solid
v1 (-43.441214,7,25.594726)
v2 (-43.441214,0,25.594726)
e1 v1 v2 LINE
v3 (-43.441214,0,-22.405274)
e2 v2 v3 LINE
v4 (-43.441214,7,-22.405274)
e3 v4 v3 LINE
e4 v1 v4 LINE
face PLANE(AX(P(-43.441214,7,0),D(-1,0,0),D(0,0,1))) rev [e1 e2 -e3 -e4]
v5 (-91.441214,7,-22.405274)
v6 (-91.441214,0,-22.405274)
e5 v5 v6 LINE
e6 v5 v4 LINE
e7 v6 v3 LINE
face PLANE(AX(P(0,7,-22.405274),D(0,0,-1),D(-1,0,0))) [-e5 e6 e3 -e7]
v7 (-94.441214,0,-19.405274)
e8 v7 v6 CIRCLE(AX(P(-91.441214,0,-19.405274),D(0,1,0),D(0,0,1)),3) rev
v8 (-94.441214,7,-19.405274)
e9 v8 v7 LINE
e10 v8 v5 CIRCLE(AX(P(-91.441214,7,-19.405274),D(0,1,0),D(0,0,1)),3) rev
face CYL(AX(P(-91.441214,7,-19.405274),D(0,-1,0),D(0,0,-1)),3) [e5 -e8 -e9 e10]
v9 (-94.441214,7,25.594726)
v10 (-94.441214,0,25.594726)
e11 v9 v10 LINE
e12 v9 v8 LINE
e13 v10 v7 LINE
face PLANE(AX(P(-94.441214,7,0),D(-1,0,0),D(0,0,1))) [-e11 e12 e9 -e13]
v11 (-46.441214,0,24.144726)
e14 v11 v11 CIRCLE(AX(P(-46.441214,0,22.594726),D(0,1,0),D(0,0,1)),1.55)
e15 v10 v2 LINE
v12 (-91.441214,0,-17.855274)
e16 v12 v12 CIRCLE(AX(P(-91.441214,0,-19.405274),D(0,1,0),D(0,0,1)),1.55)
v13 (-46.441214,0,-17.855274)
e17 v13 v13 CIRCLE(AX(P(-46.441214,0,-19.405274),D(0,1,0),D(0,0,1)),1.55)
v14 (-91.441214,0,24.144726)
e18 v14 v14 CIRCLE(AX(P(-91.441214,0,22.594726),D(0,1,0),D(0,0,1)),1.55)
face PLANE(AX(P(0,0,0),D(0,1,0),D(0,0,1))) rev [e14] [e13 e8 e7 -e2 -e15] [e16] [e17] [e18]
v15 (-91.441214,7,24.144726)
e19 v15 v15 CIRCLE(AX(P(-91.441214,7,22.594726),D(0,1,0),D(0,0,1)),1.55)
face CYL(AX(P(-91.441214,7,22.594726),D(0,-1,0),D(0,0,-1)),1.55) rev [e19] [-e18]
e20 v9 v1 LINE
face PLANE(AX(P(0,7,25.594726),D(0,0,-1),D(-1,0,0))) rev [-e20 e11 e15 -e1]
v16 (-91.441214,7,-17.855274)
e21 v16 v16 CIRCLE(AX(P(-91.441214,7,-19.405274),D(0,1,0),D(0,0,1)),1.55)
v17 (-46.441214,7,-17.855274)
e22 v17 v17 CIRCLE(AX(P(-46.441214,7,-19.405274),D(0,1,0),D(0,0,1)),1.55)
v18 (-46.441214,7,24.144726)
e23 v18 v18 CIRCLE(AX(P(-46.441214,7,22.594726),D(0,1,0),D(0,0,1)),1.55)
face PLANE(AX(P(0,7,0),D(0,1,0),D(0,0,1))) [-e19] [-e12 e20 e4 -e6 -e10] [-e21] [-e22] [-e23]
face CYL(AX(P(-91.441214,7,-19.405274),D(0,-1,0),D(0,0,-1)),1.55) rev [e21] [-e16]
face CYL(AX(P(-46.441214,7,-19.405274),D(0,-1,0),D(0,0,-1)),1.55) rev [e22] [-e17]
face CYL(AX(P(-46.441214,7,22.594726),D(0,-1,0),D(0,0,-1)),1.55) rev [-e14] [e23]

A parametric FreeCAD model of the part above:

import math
import FreeCAD as App
import Part
import Sketcher

doc = App.newDocument("Part")
body = doc.addObject("PartDesign::Body", "Body")

sketch1 = body.newObject("Sketcher::SketchObject", "Sketch")
sketch1.AttachmentSupport = (doc.getObject("XZ_Plane"), [""])
sketch1.MapMode = "FlatFace"
sketch1.addGeometry(Part.LineSegment(App.Vector(-94.4, 25.6, 0), App.Vector(-43.4, 25.6, 0)), False)
sketch1.addGeometry(Part.LineSegment(App.Vector(-43.4, 25.6, 0), App.Vector(-43.4, -22.4, 0)), False)
sketch1.addGeometry(Part.LineSegment(App.Vector(-43.4, -22.4, 0), App.Vector(-91.4, -22.4, 0)), False)
sketch1.addGeometry(Part.ArcOfCircle(Part.Circle(App.Vector(-91.4, -19.4, 0), App.Vector(0, 0, 1), 3), math.radians(180), math.radians(270)), False)
sketch1.addGeometry(Part.LineSegment(App.Vector(-94.4, -19.4, 0), App.Vector(-94.4, 25.6, 0)), False)
sketch1.addGeometry(Part.Circle(App.Vector(-91.4, 22.6, 0), App.Vector(0, 0, 1), 1.6), False)
sketch1.addGeometry(Part.Circle(App.Vector(-46.4, 22.6, 0), App.Vector(0, 0, 1), 1.6), False)
sketch1.addGeometry(Part.Circle(App.Vector(-91.4, -19.4, 0), App.Vector(0, 0, 1), 1.6), False)
sketch1.addGeometry(Part.Circle(App.Vector(-46.4, -19.4, 0), App.Vector(0, 0, 1), 1.6), False)
sketch1.addConstraint(Sketcher.Constraint("Coincident", 0, 2, 1, 1))
sketch1.addConstraint(Sketcher.Constraint("Coincident", 1, 2, 2, 1))
sketch1.addConstraint(Sketcher.Constraint("Tangent", 2, 2, 3, 2))
sketch1.addConstraint(Sketcher.Constraint("Tangent", 3, 1, 4, 1))
sketch1.addConstraint(Sketcher.Constraint("Coincident", 4, 2, 0, 1))
sketch1.addConstraint(Sketcher.Constraint("Horizontal", 0))
sketch1.addConstraint(Sketcher.Constraint("Vertical", 1))
sketch1.addConstraint(Sketcher.Constraint("Horizontal", 2))
sketch1.addConstraint(Sketcher.Constraint("Vertical", 4))
sketch1.addConstraint(Sketcher.Constraint("Coincident", 7, 3, 3, 3))
sketch1.addConstraint(Sketcher.Constraint("Equal", 5, 6))
sketch1.addConstraint(Sketcher.Constraint("Equal", 6, 7))
sketch1.addConstraint(Sketcher.Constraint("Equal", 7, 8))
sketch1.addConstraint(Sketcher.Constraint("Horizontal", 5, 3, 6, 3))
sketch1.addConstraint(Sketcher.Constraint("Horizontal", 7, 3, 8, 3))
sketch1.addConstraint(Sketcher.Constraint("Vertical", 3, 3, 5, 3))
sketch1.addConstraint(Sketcher.Constraint("Vertical", 6, 3, 8, 3))
sketch1.addConstraint(Sketcher.Constraint("Equal", 2, 1))
sketch1.addConstraint(Sketcher.Constraint("Radius", 3, 3.0))
sketch1.addConstraint(Sketcher.Constraint("Diameter", 5, 3.1))
sketch1.addConstraint(Sketcher.Constraint("DistanceX", 0, 1, 0, 2, 51.0))
sketch1.addConstraint(Sketcher.Constraint("DistanceY", 3, 3, 5, 3, 42.0))
sketch1.addConstraint(Sketcher.Constraint("DistanceX", 5, 3, 6, 3, 45.0))
sketch1.addConstraint(Sketcher.Constraint("DistanceX", 3, 3, -1, 1, 91.441214))
sketch1.addConstraint(Sketcher.Constraint("DistanceY", 3, 3, -1, 1, 19.405274))
pad1 = body.newObject("PartDesign::Pad", "Pad")
pad1.Profile = sketch1
pad1.Length = 7
pad1.Reversed = True

doc.recompute()
